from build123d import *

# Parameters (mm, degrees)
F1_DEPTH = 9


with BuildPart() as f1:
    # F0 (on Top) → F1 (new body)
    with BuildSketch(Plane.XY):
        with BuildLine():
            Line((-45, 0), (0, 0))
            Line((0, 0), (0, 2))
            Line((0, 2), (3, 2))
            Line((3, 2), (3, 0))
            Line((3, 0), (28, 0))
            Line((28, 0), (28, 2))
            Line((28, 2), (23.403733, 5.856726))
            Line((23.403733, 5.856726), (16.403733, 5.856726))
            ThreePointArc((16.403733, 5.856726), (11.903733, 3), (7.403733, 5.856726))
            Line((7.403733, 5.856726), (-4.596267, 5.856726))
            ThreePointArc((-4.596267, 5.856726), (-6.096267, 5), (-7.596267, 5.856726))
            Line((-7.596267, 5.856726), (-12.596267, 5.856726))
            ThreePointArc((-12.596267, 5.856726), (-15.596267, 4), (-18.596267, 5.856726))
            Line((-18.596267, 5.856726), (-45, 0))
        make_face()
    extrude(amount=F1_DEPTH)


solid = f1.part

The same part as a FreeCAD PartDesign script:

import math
import FreeCAD as App
import Part
import Sketcher

V = App.Vector
Q = App.Units.Quantity

doc = App.newDocument("Part")
body = doc.addObject("PartDesign::Body", "Body")

# Sketch on XY plane
sketch1 = body.newObject("Sketcher::SketchObject", "Sketch")
sketch1.AttachmentSupport = (doc.getObject("XY_Plane"), [""])
sketch1.MapMode = "FlatFace"
sketch1.addGeometry([
    Part.LineSegment(V(-45, 0, 0), V(0, 0, 0)),  # 0
    Part.LineSegment(V(0, 0, 0), V(0, 2, 0)),  # 1
    Part.LineSegment(V(0, 2, 0), V(3, 2, 0)),  # 2
    Part.LineSegment(V(3, 2, 0), V(3, 0, 0)),  # 3
    Part.LineSegment(V(3, 0, 0), V(28, 0, 0)),  # 4
    Part.LineSegment(V(28, 0, 0), V(28, 2, 0)),  # 5
    Part.LineSegment(V(28, 2, 0), V(23.403733, 5.856726, 0)),  # 6
    Part.LineSegment(V(23.403733, 5.856726, 0), V(16.403733, 5.856726, 0)),  # 7
    Part.ArcOfCircle(Part.Circle(V(11.903733, 7.97263, 0), V(0, 0, 1), 4.97263), math.radians(-154.817048), math.radians(-25.182952)),  # 8
    Part.LineSegment(V(7.403733, 5.856726, 0), V(-4.596267, 5.856726, 0)),  # 9
    Part.ArcOfCircle(Part.Circle(V(-6.096267, 6.741502, 0), V(0, 0, 1), 1.741502), math.radians(-149.465753), math.radians(-30.534247)),  # 10
    Part.LineSegment(V(-7.596267, 5.856726, 0), V(-12.596267, 5.856726, 0)),  # 11
    Part.ArcOfCircle(Part.Circle(V(-15.596267, 7.351984, 0), V(0, 0, 1), 3.351984), math.radians(-153.507448), math.radians(-26.492552)),  # 12
    Part.LineSegment(V(-18.596267, 5.856726, 0), V(-45, 0, 0)),  # 13
], False)
sketch1.addConstraint([
    Sketcher.Constraint("Coincident", 0, 2, 1, 1),
    Sketcher.Constraint("Coincident", 1, 2, 2, 1),
    Sketcher.Constraint("Coincident", 2, 2, 3, 1),
    Sketcher.Constraint("Coincident", 3, 2, 4, 1),
    Sketcher.Constraint("Coincident", 4, 2, 5, 1),
    Sketcher.Constraint("Coincident", 5, 2, 6, 1),
    Sketcher.Constraint("Coincident", 6, 2, 7, 1),
    Sketcher.Constraint("Coincident", 7, 2, 8, 2),
    Sketcher.Constraint("Coincident", 8, 1, 9, 1),
    Sketcher.Constraint("Coincident", 9, 2, 10, 2),
    Sketcher.Constraint("Coincident", 10, 1, 11, 1),
    Sketcher.Constraint("Coincident", 11, 2, 12, 2),
    Sketcher.Constraint("Coincident", 12, 1, 13, 1),
    Sketcher.Constraint("Coincident", 13, 2, 0, 1),
    Sketcher.Constraint("Horizontal", 0),
    Sketcher.Constraint("Vertical", 1),
    Sketcher.Constraint("Horizontal", 2),
    Sketcher.Constraint("Vertical", 3),
    Sketcher.Constraint("Horizontal", 4),
    Sketcher.Constraint("Vertical", 5),
    Sketcher.Constraint("Horizontal", 7),
    Sketcher.Constraint("Horizontal", 9),
    Sketcher.Constraint("Horizontal", 11),
    Sketcher.Constraint("Coincident", 0, 2, -1, 1),
    Sketcher.Constraint("PointOnObject", 3, 2, -1),
    Sketcher.Constraint("Horizontal", 2, 2, 5, 2),
    Sketcher.Constraint("Horizontal", 7, 2, 8, 1),
    Sketcher.Constraint("Horizontal", 9, 2, 10, 1),
    Sketcher.Constraint("Horizontal", 11, 2, 12, 1),
    Sketcher.Constraint("DistanceX", 0, 1, 0, 2, Q("45 mm")),
    Sketcher.Constraint("DistanceX", 2, 1, 2, 2, Q("3 mm")),
    Sketcher.Constraint("DistanceX", 4, 1, 4, 2, Q("25 mm")),
    Sketcher.Constraint("DistanceX", 7, 2, 7, 1, Q("7 mm")),
    Sketcher.Constraint("DistanceX", 9, 2, 9, 1, Q("12 mm")),
    Sketcher.Constraint("DistanceX", 11, 2, 11, 1, Q("5 mm")),
    Sketcher.Constraint("DistanceY", 1, 1, 1, 2, Q("2 mm")),
    Sketcher.Constraint("Angle", 6, Q("140 deg")),
    Sketcher.Constraint("Distance", 6, Q("6 mm")),
    Sketcher.Constraint("DistanceX", 10, 3, 8, 3, Q("18 mm")),
    Sketcher.Constraint("DistanceX", 8, 1, 7, 2, Q("9 mm")),
    Sketcher.Constraint("DistanceX", 12, 3, 10, 1, Q("8 mm")),
    Sketcher.Constraint("Radius", 10, Q("1.741502 mm")),
    Sketcher.Constraint("Radius", 8, Q("4.97263 mm")),
    Sketcher.Constraint("Radius", 12, Q("3.351984 mm")),
])
pad1 = body.newObject("PartDesign::Pad", "Pad")
pad1.Profile = sketch1
pad1.Length = 9

doc.recompute()
